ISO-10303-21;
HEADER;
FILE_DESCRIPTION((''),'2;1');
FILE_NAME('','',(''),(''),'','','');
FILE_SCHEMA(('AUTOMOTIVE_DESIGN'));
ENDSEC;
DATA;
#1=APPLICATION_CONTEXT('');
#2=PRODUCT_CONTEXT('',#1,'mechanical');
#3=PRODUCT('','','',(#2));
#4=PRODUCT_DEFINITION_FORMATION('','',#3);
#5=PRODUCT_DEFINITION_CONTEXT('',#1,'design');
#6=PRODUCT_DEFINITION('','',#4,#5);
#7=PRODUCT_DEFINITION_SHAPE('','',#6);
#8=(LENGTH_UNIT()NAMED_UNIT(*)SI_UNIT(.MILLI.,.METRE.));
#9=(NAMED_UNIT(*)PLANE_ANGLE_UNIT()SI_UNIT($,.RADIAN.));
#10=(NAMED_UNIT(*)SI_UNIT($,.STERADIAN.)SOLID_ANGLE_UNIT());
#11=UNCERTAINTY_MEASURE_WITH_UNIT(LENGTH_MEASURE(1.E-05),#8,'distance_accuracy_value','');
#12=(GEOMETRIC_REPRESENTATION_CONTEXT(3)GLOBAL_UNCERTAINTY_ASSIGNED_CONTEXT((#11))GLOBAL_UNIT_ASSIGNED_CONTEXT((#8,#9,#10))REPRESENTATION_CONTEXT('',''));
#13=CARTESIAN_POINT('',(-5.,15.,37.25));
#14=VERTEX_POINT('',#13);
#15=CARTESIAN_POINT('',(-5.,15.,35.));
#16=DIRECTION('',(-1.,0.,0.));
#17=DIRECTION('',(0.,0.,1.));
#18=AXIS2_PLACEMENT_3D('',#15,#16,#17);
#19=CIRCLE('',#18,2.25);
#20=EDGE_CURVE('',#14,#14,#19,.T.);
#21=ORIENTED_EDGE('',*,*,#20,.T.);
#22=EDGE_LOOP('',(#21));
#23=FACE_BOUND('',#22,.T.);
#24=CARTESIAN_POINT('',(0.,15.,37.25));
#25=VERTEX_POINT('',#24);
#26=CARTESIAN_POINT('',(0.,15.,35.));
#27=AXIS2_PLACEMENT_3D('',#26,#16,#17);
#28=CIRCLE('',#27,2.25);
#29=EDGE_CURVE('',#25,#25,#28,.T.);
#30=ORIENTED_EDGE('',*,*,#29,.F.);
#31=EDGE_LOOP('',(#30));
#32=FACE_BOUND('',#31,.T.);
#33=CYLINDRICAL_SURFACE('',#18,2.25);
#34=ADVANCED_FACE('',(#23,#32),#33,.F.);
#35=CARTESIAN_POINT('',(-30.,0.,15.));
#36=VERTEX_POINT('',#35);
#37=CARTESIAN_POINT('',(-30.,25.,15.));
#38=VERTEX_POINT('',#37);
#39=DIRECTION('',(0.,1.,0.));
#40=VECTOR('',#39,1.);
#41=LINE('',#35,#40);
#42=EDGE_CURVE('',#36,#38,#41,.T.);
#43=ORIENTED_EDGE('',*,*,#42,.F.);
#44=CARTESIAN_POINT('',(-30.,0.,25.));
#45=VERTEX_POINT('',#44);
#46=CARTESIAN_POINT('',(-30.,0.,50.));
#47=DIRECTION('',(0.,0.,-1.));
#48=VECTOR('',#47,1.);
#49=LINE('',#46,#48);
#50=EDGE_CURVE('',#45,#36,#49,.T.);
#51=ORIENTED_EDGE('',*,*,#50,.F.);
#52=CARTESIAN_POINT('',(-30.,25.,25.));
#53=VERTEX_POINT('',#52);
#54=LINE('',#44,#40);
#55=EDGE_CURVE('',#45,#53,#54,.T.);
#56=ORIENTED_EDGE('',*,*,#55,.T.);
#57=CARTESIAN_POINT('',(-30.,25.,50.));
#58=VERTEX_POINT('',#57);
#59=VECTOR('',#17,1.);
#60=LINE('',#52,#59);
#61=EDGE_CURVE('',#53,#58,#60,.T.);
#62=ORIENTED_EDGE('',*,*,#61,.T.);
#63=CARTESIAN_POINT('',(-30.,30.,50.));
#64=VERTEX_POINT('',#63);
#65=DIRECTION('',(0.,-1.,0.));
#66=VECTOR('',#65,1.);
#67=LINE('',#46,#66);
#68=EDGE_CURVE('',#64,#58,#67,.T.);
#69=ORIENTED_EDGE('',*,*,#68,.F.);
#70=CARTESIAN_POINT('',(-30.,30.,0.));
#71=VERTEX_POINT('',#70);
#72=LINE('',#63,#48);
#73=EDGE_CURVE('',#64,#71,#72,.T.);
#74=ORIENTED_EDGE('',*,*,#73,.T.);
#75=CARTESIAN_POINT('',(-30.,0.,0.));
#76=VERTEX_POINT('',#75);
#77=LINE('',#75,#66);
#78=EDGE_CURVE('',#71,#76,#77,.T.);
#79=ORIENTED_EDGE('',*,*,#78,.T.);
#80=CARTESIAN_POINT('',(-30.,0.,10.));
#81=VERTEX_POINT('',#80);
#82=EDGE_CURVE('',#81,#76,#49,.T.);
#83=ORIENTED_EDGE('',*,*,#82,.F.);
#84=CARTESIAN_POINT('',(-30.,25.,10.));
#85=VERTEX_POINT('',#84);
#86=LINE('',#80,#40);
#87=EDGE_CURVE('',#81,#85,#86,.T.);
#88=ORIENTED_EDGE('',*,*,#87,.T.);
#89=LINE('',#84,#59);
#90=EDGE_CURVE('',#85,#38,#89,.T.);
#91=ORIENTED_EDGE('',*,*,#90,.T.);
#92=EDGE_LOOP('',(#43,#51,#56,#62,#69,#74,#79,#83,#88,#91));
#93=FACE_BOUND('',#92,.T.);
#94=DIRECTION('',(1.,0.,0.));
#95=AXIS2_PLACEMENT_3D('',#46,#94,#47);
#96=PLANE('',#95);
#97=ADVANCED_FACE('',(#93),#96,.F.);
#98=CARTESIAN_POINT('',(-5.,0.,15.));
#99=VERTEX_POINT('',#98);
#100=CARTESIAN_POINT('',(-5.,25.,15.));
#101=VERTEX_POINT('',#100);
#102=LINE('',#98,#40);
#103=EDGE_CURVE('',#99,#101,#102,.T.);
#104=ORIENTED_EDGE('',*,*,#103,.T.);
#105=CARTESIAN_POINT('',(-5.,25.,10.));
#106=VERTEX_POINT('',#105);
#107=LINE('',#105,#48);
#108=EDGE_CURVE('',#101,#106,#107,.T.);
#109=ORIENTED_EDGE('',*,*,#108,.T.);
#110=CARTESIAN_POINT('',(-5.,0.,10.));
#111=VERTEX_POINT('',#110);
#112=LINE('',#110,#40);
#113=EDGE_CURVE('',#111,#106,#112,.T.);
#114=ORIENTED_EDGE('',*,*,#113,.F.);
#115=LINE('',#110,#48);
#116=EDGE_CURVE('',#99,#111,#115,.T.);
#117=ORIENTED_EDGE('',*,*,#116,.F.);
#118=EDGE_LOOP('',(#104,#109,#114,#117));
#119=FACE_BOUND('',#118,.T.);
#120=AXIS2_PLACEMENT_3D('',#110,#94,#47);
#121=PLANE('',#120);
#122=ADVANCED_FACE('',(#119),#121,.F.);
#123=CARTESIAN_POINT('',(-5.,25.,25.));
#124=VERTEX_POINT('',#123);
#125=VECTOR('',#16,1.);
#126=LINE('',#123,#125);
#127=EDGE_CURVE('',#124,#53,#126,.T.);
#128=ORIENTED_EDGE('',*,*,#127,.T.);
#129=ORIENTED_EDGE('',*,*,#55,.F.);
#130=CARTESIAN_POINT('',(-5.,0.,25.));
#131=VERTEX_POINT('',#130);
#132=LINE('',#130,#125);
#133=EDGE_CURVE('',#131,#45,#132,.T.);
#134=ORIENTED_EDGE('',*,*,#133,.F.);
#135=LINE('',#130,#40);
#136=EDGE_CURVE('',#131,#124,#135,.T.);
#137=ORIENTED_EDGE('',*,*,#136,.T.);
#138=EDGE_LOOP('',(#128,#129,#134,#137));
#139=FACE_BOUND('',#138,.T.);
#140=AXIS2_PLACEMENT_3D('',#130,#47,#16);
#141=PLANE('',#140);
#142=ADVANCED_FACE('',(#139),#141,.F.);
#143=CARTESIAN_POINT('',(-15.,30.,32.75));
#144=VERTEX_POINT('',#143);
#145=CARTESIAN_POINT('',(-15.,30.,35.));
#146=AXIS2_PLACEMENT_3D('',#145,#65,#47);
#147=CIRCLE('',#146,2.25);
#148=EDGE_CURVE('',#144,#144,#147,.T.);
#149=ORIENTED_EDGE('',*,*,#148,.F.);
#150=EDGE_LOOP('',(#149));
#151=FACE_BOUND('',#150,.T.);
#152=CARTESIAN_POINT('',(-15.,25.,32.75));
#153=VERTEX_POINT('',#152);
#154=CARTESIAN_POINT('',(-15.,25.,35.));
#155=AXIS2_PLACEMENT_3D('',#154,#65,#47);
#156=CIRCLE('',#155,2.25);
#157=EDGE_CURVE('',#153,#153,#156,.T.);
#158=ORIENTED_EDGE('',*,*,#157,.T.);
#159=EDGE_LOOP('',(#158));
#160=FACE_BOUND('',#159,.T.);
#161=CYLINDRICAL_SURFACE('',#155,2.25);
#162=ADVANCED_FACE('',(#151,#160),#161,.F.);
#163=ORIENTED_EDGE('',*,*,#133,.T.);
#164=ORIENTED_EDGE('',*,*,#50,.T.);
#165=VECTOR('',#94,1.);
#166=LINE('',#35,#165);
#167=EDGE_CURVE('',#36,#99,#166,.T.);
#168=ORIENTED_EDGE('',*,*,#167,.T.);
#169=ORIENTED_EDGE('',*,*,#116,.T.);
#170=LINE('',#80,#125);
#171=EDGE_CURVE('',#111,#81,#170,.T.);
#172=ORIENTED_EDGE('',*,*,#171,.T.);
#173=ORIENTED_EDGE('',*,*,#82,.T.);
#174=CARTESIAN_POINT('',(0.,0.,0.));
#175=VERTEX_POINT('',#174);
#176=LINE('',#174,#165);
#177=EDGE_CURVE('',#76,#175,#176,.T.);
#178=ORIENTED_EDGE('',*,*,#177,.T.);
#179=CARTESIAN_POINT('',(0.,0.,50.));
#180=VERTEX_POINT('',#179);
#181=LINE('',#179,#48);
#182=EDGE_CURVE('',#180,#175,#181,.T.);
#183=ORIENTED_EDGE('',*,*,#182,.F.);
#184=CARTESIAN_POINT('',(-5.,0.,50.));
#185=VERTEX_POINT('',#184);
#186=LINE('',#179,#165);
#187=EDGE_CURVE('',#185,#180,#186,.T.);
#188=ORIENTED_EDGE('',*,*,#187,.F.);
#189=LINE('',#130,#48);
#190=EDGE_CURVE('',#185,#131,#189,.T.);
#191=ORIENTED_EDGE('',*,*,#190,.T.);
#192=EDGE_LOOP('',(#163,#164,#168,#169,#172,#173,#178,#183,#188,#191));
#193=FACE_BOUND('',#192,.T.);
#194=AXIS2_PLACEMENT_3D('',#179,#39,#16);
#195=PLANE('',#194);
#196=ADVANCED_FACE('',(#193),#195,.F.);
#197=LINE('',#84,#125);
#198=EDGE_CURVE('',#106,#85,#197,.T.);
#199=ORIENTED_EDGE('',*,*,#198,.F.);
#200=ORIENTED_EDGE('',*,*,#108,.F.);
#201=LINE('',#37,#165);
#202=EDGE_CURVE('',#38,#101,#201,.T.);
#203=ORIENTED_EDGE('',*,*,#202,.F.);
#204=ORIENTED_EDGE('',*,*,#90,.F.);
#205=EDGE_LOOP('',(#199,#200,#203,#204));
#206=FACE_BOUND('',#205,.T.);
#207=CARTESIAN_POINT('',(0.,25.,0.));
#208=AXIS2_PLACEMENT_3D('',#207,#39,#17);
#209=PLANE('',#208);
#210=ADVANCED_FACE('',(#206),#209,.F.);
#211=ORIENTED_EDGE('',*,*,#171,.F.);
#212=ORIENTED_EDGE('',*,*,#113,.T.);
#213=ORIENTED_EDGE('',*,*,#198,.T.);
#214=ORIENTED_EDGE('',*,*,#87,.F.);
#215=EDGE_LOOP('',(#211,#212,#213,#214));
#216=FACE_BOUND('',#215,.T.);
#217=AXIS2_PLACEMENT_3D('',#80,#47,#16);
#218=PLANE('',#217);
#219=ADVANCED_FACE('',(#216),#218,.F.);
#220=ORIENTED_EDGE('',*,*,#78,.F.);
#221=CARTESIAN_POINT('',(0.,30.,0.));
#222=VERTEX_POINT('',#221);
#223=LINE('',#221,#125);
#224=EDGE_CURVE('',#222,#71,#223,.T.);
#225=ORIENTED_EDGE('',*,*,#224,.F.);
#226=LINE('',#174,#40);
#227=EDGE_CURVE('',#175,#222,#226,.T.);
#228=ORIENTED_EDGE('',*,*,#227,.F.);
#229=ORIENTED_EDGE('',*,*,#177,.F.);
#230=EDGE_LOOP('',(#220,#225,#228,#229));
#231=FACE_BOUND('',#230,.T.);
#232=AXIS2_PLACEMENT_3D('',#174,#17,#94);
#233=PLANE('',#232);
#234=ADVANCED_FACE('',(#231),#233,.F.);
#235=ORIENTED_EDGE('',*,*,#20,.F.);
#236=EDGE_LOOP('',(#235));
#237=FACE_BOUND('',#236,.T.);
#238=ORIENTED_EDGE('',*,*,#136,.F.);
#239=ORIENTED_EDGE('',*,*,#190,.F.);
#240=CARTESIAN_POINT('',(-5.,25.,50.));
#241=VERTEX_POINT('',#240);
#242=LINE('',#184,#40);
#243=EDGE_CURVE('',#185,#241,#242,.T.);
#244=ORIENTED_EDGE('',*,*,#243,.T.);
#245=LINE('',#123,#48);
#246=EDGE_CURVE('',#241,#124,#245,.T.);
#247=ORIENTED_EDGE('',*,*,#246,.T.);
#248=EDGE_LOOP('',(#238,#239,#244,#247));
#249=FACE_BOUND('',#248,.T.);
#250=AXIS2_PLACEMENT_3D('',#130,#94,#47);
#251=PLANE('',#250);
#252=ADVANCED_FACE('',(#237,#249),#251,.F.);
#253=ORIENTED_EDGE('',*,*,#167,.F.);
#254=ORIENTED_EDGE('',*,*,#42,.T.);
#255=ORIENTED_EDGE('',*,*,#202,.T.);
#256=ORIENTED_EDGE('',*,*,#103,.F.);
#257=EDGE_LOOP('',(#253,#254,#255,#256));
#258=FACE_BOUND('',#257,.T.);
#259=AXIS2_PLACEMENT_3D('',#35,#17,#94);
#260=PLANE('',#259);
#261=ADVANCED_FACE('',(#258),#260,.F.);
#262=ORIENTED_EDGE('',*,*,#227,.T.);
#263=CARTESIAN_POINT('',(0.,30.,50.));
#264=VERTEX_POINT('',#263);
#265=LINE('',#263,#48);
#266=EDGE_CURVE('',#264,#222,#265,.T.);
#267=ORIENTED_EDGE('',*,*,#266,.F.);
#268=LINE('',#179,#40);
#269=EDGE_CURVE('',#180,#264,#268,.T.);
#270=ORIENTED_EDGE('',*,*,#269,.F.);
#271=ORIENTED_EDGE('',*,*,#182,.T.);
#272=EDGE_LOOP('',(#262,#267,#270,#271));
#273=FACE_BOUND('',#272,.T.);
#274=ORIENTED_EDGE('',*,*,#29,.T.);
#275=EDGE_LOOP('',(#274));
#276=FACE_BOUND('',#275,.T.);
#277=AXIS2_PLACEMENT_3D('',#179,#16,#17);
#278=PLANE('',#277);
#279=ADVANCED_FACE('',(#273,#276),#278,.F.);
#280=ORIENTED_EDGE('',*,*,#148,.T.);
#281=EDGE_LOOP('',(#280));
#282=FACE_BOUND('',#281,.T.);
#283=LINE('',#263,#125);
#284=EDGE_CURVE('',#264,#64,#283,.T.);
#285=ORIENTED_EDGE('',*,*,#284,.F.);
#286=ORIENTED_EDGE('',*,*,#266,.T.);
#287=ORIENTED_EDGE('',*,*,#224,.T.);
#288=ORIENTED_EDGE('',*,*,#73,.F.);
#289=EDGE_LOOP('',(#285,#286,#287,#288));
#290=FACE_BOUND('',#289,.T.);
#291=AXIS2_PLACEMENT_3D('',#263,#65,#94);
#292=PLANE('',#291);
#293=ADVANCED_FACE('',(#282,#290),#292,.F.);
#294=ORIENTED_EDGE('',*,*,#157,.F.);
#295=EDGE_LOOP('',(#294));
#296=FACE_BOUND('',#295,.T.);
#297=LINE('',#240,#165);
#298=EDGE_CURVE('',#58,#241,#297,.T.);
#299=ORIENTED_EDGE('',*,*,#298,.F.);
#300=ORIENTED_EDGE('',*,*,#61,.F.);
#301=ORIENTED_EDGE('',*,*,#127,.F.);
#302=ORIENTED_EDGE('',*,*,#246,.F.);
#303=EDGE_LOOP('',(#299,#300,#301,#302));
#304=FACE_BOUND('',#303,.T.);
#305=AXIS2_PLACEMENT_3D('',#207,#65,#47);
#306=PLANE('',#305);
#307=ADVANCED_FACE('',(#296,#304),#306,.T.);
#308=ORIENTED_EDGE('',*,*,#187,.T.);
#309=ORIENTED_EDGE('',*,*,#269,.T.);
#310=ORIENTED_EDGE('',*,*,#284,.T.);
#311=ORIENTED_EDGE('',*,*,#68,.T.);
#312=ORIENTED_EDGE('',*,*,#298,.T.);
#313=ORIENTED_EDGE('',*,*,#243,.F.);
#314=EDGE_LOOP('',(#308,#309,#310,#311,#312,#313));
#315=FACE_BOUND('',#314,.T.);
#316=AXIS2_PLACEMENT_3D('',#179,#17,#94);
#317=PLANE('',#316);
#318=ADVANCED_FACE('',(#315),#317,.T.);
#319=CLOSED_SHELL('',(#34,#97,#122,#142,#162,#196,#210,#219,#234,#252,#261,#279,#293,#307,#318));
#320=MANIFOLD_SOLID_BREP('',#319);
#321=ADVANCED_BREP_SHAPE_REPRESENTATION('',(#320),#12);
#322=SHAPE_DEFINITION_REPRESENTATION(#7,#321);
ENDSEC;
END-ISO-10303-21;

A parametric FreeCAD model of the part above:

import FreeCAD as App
import Part
import Sketcher

V = App.Vector
Q = App.Units.Quantity

doc = App.newDocument("Part")
params = doc.addObject("Spreadsheet::Sheet", "Params")
for row, (alias, value) in enumerate([
    ("sketch1_width", "30 mm"),
    ("pad1_length", "50 mm"),
    ("sketch2_width", "25 mm"),
    ("sketch2_height", "5 mm"),
    ("sketch3_width", "25 mm"),
    ("sketch4_diameter", "4.5 mm"),
    ("hole_diameter", "4.5 mm"),
    ("sketch5_diameter", "4.5 mm"),
    ("hole2_diameter", "4.5 mm"),
], start=1):
    params.set(f"A{row}", alias)
    params.set(f"B{row}", "=" + value)
    params.setAlias(f"B{row}", alias)

body = doc.addObject("PartDesign::Body", "Body")

# Sketch on XY plane
sketch1 = body.newObject("Sketcher::SketchObject", "Sketch")
sketch1.AttachmentSupport = (doc.getObject("XY_Plane"), [""])
sketch1.MapMode = "FlatFace"
sketch1.addGeometry([
    Part.LineSegment(V(-30, 30, 0), V(-30, 0, 0)),
    Part.LineSegment(V(-30, 0, 0), V(0, 0, 0)),
    Part.LineSegment(V(0, 0, 0), V(0, 30, 0)),
    Part.LineSegment(V(0, 30, 0), V(-30, 30, 0)),
], False)
sketch1.addConstraint([
    Sketcher.Constraint("Coincident", 0, 2, 1, 1),
    Sketcher.Constraint("Coincident", 1, 2, 2, 1),
    Sketcher.Constraint("Coincident", 2, 2, 3, 1),
    Sketcher.Constraint("Coincident", 3, 2, 0, 1),
    Sketcher.Constraint("Vertical", 0),
    Sketcher.Constraint("Horizontal", 1),
    Sketcher.Constraint("Vertical", 2),
    Sketcher.Constraint("Horizontal", 3),
    Sketcher.Constraint("Coincident", 1, 2, -1, 1),
    Sketcher.Constraint("Equal", 3, 0),
    Sketcher.Constraint("DistanceX", 1, 1, 1, 2, Q("30 mm")),
])
sketch1.setExpression("Constraints[10]", "Params.sketch1_width")
pad1 = body.newObject("PartDesign::Pad", "Pad")
pad1.Profile = sketch1
pad1.setExpression("Length", "Params.pad1_length")

# Sketch on XZ plane
sketch2 = body.newObject("Sketcher::SketchObject", "Sketch001")
sketch2.AttachmentSupport = (doc.getObject("XZ_Plane"), [""])
sketch2.MapMode = "FlatFace"
sketch2.AttachmentOffset = App.Placement(V(0, 0, -25), App.Rotation())
sketch2.addGeometry([
    Part.LineSegment(V(-30, 10, 0), V(-30, 15, 0)),
    Part.LineSegment(V(-30, 15, 0), V(-5, 15, 0)),
    Part.LineSegment(V(-5, 15, 0), V(-5, 10, 0)),
    Part.LineSegment(V(-5, 10, 0), V(-30, 10, 0)),
], False)
sketch2.addConstraint([
    Sketcher.Constraint("Coincident", 0, 2, 1, 1),
    Sketcher.Constraint("Coincident", 1, 2, 2, 1),
    Sketcher.Constraint("Coincident", 2, 2, 3, 1),
    Sketcher.Constraint("Coincident", 3, 2, 0, 1),
    Sketcher.Constraint("Vertical", 0),
    Sketcher.Constraint("Horizontal", 1),
    Sketcher.Constraint("Vertical", 2),
    Sketcher.Constraint("Horizontal", 3),
    Sketcher.Constraint("DistanceX", 1, 1, 1, 2, Q("25 mm")),
    Sketcher.Constraint("DistanceY", 0, 1, 0, 2, Q("5 mm")),
    Sketcher.Constraint("DistanceX", 0, 2, -1, 1, Q("30 mm")),
    Sketcher.Constraint("DistanceY", -1, 1, 0, 2, Q("15 mm")),
])
sketch2.setExpression("Constraints[8]", "Params.sketch2_width")
sketch2.setExpression("Constraints[9]", "Params.sketch2_height")
pocket1 = body.newObject("PartDesign::Pocket", "Pocket")
pocket1.Profile = sketch2
pocket1.Type = "ThroughAll"
pocket1.Reversed = True

# Sketch on XZ plane
sketch3 = body.newObject("Sketcher::SketchObject", "Sketch002")
sketch3.AttachmentSupport = (doc.getObject("XZ_Plane"), [""])
sketch3.MapMode = "FlatFace"
sketch3.AttachmentOffset = App.Placement(V(0, 0, -25), App.Rotation())
sketch3.addGeometry([
    Part.LineSegment(V(-30, 25, 0), V(-30, 50, 0)),
    Part.LineSegment(V(-30, 50, 0), V(-5, 50, 0)),
    Part.LineSegment(V(-5, 50, 0), V(-5, 25, 0)),
    Part.LineSegment(V(-5, 25, 0), V(-30, 25, 0)),
], False)
sketch3.addConstraint([
    Sketcher.Constraint("Coincident", 0, 2, 1, 1),
    Sketcher.Constraint("Coincident", 1, 2, 2, 1),
    Sketcher.Constraint("Coincident", 2, 2, 3, 1),
    Sketcher.Constraint("Coincident", 3, 2, 0, 1),
    Sketcher.Constraint("Vertical", 0),
    Sketcher.Constraint("Horizontal", 1),
    Sketcher.Constraint("Vertical", 2),
    Sketcher.Constraint("Horizontal", 3),
    Sketcher.Constraint("Equal", 3, 0),
    Sketcher.Constraint("DistanceX", 1, 1, 1, 2, Q("25 mm")),
    Sketcher.Constraint("DistanceX", 0, 2, -1, 1, Q("30 mm")),
    Sketcher.Constraint("DistanceY", -1, 1, 0, 2, Q("50 mm")),
])
sketch3.setExpression("Constraints[9]", "Params.sketch3_width")
pocket2 = body.newObject("PartDesign::Pocket", "Pocket001")
pocket2.Profile = sketch3
pocket2.Type = "ThroughAll"
pocket2.Reversed = True

# Sketch on YZ plane
sketch4 = body.newObject("Sketcher::SketchObject", "Sketch003")
sketch4.AttachmentSupport = (doc.getObject("YZ_Plane"), [""])
sketch4.MapMode = "FlatFace"
sketch4.AttachmentOffset = App.Placement(V(0, 0, -5), App.Rotation())
sketch4.addGeometry(Part.Circle(V(15, 35, 0), V(0, 0, 1), 2.25), False)
sketch4.addConstraint([
    Sketcher.Constraint("Diameter", 0, Q("4.5 mm")),
    Sketcher.Constraint("DistanceX", -1, 1, 0, 3, Q("15 mm")),
    Sketcher.Constraint("DistanceY", -1, 1, 0, 3, Q("35 mm")),
])
sketch4.setExpression("Constraints[0]", "Params.sketch4_diameter")
doc.recompute()
hole = body.newObject("PartDesign::Hole", "Hole")
hole.Profile = sketch4
hole.ThreadType = "None"
hole.setExpression("Diameter", "Params.hole_diameter")
hole.DepthType = "ThroughAll"
hole.Reversed = True

# Sketch on XZ plane
sketch5 = body.newObject("Sketcher::SketchObject", "Sketch004")
sketch5.AttachmentSupport = (doc.getObject("XZ_Plane"), [""])
sketch5.MapMode = "FlatFace"
sketch5.AttachmentOffset = App.Placement(V(0, 0, -25), App.Rotation())
sketch5.addGeometry(Part.Circle(V(-15, 35, 0), V(0, 0, 1), 2.25), False)
sketch5.addConstraint([
    Sketcher.Constraint("Diameter", 0, Q("4.5 mm")),
    Sketcher.Constraint("DistanceX", 0, 3, -1, 1, Q("15 mm")),
    Sketcher.Constraint("DistanceY", -1, 1, 0, 3, Q("35 mm")),
])
sketch5.setExpression("Constraints[0]", "Params.sketch5_diameter")
doc.recompute()
hole2 = body.newObject("PartDesign::Hole", "Hole001")
hole2.Profile = sketch5
hole2.ThreadType = "None"
hole2.setExpression("Diameter", "Params.hole2_diameter")
hole2.DepthType = "ThroughAll"

doc.recompute()
